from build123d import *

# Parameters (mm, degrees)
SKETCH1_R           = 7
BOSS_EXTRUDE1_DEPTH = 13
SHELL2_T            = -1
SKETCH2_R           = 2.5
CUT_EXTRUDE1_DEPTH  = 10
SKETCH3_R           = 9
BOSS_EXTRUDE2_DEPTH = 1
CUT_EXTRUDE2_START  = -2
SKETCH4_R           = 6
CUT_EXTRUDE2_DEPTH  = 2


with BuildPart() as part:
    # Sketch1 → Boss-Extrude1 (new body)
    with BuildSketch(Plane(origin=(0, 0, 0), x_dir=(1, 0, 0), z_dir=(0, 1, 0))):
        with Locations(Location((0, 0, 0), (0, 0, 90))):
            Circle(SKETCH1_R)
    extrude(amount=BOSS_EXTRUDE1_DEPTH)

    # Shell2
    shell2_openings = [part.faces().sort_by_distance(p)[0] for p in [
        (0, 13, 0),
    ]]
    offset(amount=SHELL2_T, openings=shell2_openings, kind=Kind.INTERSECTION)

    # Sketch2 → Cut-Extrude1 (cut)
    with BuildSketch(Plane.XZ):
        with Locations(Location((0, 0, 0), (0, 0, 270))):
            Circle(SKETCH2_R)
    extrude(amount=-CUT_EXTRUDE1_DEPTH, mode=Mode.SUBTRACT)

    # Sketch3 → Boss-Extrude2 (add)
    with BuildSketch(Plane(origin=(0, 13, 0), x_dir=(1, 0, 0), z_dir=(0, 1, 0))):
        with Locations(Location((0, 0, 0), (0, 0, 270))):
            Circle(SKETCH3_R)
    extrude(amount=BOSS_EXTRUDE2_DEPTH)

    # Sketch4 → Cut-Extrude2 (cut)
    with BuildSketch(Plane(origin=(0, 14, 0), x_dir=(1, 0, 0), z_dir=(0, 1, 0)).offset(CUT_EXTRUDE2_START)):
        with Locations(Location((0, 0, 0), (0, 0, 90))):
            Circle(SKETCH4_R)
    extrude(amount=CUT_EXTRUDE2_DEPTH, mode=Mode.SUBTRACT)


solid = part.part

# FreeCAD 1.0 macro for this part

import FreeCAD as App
import Part
import Sketcher


def faces_at(feature, points):
    """Names of the faces that lie closest to the given points."""
    faces = feature.Shape.Faces
    near = lambda p: min(range(len(faces)), key=lambda i: faces[i].distToShape(Part.Vertex(*p))[0])
    return sorted({f"Face{near(p) + 1}" for p in points})

doc = App.newDocument("Part")
params = doc.addObject("Spreadsheet::Sheet", "Params")
for row, (alias, value) in enumerate([
    ("sketch1_diameter", "14 mm"),
    ("pad1_length", "13 mm"),
    ("thickness_wall", "1 mm"),
    ("sketch2_diameter", "5 mm"),
    ("pocket1_length", "10 mm"),
    ("sketch3_diameter", "18 mm"),
    ("pad2_length", "1 mm"),
    ("sketch4_diameter", "12 mm"),
    ("pocket2_length", "2 mm"),
], start=1):
    params.set(f"A{row}", alias)
    params.set(f"B{row}", "=" + value)
    params.setAlias(f"B{row}", alias)

body = doc.addObject("PartDesign::Body", "Body")

# Sketch on XZ plane
sketch1 = doc.addObject("Sketcher::SketchObject", "Sketch")
body.addObject(sketch1)
sketch1.AttachmentSupport = (doc.XZ_Plane, [""])
sketch1.MapMode = "FlatFace"
sketch1.addGeometry(Part.Circle(App.Vector(0, 0, 0), App.Vector(0, 0, 1), 7), False)
sketch1.addConstraint([
    Sketcher.Constraint("Coincident", 0, 3, -1, 1),
    Sketcher.Constraint("Diameter", 0, 14.0),
])
sketch1.setExpression("Constraints[1]", "Params.sketch1_diameter")
pad1 = doc.addObject("PartDesign::Pad", "Pad")
body.addObject(pad1)
pad1.Profile = sketch1
pad1.setExpression("Length", "Params.pad1_length")
pad1.Reversed = True
doc.recompute()

thickness = doc.addObject("PartDesign::Thickness", "Thickness")
body.addObject(thickness)
thickness.Base = (pad1, faces_at(pad1, [(0, 13, 0)]))
thickness.setExpression("Value", "Params.thickness_wall")
thickness.Reversed = True
thickness.Join = "Intersection"

# Sketch on XZ plane
sketch2 = doc.addObject("Sketcher::SketchObject", "Sketch001")
body.addObject(sketch2)
sketch2.AttachmentSupport = (doc.XZ_Plane, [""])
sketch2.MapMode = "FlatFace"
sketch2.addGeometry(Part.Circle(App.Vector(0, 0, 0), App.Vector(0, 0, 1), 2.5), False)
sketch2.addConstraint([
    Sketcher.Constraint("Coincident", 0, 3, -1, 1),
    Sketcher.Constraint("Diameter", 0, 5.0),
])
sketch2.setExpression("Constraints[1]", "Params.sketch2_diameter")
pocket1 = doc.addObject("PartDesign::Pocket", "Pocket")
body.addObject(pocket1)
pocket1.Profile = sketch2
pocket1.setExpression("Length", "Params.pocket1_length")

# Sketch on XZ plane
sketch3 = doc.addObject("Sketcher::SketchObject", "Sketch002")
body.addObject(sketch3)
sketch3.AttachmentSupport = (doc.XZ_Plane, [""])
sketch3.MapMode = "FlatFace"
sketch3.AttachmentOffset = App.Placement(App.Vector(0, 0, -13), App.Rotation())
sketch3.addGeometry(Part.Circle(App.Vector(0, 0, 0), App.Vector(0, 0, 1), 9), False)
sketch3.addConstraint([
    Sketcher.Constraint("Coincident", 0, 3, -1, 1),
    Sketcher.Constraint("Diameter", 0, 18.0),
])
sketch3.setExpression("Constraints[1]", "Params.sketch3_diameter")
pad2 = doc.addObject("PartDesign::Pad", "Pad001")
body.addObject(pad2)
pad2.Profile = sketch3
pad2.setExpression("Length", "Params.pad2_length")
pad2.Reversed = True

# Sketch on XZ plane
sketch4 = doc.addObject("Sketcher::SketchObject", "Sketch003")
body.addObject(sketch4)
sketch4.AttachmentSupport = (doc.XZ_Plane, [""])
sketch4.MapMode = "FlatFace"
sketch4.AttachmentOffset = App.Placement(App.Vector(0, 0, -12), App.Rotation())
sketch4.addGeometry(Part.Circle(App.Vector(0, 0, 0), App.Vector(0, 0, 1), 6), False)
sketch4.addConstraint([
    Sketcher.Constraint("Coincident", 0, 3, -1, 1),
    Sketcher.Constraint("Diameter", 0, 12.0),
])
sketch4.setExpression("Constraints[1]", "Params.sketch4_diameter")
pocket2 = doc.addObject("PartDesign::Pocket", "Pocket001")
body.addObject(pocket2)
pocket2.Profile = sketch4
pocket2.setExpression("Length", "Params.pocket2_length")

doc.recompute()
